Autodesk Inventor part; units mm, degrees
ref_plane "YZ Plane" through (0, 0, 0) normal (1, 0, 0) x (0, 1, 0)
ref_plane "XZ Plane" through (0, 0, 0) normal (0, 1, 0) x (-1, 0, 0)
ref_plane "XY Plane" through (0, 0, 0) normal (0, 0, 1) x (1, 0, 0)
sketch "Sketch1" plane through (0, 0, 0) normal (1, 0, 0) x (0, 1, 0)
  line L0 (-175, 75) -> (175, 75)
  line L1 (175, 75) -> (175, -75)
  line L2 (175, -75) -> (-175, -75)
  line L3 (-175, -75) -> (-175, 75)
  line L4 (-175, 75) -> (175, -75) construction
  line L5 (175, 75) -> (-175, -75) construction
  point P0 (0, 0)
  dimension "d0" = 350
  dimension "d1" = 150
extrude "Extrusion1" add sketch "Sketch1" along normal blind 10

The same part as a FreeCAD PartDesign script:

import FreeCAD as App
import Part
import Sketcher
from FreeCAD import Vector

doc = App.newDocument("Part")
body = doc.addObject("PartDesign::Body", "Body")

sketch1 = doc.addObject("Sketcher::SketchObject", "Sketch")
body.addObject(sketch1)
sketch1.AttachmentSupport = (doc.YZ_Plane, [""])
sketch1.MapMode = "FlatFace"
sketch1.addGeometry([
    Part.LineSegment(Vector(175, 75, 0), Vector(-175, 75, 0)),
    Part.LineSegment(Vector(-175, 75, 0), Vector(-175, -75, 0)),
    Part.LineSegment(Vector(-175, -75, 0), Vector(175, -75, 0)),
    Part.LineSegment(Vector(175, -75, 0), Vector(175, 75, 0)),
], False)
sketch1.addConstraint([
    Sketcher.Constraint("Coincident", 0, 2, 1, 1),
    Sketcher.Constraint("Coincident", 1, 2, 2, 1),
    Sketcher.Constraint("Coincident", 2, 2, 3, 1),
    Sketcher.Constraint("Coincident", 3, 2, 0, 1),
    Sketcher.Constraint("Horizontal", 0),
    Sketcher.Constraint("Vertical", 1),
    Sketcher.Constraint("Horizontal", 2),
    Sketcher.Constraint("Vertical", 3),
    Sketcher.Constraint("Symmetric", 0, 2, 2, 2, -1, 1),
    Sketcher.Constraint("DistanceX", 0, 2, 0, 1, 350.0),
    Sketcher.Constraint("DistanceY", 1, 2, 1, 1, 150.0),
])
pad1 = doc.addObject("PartDesign::Pad", "Pad")
body.addObject(pad1)
pad1.Profile = sketch1
pad1.Length = 10

doc.recompute()
